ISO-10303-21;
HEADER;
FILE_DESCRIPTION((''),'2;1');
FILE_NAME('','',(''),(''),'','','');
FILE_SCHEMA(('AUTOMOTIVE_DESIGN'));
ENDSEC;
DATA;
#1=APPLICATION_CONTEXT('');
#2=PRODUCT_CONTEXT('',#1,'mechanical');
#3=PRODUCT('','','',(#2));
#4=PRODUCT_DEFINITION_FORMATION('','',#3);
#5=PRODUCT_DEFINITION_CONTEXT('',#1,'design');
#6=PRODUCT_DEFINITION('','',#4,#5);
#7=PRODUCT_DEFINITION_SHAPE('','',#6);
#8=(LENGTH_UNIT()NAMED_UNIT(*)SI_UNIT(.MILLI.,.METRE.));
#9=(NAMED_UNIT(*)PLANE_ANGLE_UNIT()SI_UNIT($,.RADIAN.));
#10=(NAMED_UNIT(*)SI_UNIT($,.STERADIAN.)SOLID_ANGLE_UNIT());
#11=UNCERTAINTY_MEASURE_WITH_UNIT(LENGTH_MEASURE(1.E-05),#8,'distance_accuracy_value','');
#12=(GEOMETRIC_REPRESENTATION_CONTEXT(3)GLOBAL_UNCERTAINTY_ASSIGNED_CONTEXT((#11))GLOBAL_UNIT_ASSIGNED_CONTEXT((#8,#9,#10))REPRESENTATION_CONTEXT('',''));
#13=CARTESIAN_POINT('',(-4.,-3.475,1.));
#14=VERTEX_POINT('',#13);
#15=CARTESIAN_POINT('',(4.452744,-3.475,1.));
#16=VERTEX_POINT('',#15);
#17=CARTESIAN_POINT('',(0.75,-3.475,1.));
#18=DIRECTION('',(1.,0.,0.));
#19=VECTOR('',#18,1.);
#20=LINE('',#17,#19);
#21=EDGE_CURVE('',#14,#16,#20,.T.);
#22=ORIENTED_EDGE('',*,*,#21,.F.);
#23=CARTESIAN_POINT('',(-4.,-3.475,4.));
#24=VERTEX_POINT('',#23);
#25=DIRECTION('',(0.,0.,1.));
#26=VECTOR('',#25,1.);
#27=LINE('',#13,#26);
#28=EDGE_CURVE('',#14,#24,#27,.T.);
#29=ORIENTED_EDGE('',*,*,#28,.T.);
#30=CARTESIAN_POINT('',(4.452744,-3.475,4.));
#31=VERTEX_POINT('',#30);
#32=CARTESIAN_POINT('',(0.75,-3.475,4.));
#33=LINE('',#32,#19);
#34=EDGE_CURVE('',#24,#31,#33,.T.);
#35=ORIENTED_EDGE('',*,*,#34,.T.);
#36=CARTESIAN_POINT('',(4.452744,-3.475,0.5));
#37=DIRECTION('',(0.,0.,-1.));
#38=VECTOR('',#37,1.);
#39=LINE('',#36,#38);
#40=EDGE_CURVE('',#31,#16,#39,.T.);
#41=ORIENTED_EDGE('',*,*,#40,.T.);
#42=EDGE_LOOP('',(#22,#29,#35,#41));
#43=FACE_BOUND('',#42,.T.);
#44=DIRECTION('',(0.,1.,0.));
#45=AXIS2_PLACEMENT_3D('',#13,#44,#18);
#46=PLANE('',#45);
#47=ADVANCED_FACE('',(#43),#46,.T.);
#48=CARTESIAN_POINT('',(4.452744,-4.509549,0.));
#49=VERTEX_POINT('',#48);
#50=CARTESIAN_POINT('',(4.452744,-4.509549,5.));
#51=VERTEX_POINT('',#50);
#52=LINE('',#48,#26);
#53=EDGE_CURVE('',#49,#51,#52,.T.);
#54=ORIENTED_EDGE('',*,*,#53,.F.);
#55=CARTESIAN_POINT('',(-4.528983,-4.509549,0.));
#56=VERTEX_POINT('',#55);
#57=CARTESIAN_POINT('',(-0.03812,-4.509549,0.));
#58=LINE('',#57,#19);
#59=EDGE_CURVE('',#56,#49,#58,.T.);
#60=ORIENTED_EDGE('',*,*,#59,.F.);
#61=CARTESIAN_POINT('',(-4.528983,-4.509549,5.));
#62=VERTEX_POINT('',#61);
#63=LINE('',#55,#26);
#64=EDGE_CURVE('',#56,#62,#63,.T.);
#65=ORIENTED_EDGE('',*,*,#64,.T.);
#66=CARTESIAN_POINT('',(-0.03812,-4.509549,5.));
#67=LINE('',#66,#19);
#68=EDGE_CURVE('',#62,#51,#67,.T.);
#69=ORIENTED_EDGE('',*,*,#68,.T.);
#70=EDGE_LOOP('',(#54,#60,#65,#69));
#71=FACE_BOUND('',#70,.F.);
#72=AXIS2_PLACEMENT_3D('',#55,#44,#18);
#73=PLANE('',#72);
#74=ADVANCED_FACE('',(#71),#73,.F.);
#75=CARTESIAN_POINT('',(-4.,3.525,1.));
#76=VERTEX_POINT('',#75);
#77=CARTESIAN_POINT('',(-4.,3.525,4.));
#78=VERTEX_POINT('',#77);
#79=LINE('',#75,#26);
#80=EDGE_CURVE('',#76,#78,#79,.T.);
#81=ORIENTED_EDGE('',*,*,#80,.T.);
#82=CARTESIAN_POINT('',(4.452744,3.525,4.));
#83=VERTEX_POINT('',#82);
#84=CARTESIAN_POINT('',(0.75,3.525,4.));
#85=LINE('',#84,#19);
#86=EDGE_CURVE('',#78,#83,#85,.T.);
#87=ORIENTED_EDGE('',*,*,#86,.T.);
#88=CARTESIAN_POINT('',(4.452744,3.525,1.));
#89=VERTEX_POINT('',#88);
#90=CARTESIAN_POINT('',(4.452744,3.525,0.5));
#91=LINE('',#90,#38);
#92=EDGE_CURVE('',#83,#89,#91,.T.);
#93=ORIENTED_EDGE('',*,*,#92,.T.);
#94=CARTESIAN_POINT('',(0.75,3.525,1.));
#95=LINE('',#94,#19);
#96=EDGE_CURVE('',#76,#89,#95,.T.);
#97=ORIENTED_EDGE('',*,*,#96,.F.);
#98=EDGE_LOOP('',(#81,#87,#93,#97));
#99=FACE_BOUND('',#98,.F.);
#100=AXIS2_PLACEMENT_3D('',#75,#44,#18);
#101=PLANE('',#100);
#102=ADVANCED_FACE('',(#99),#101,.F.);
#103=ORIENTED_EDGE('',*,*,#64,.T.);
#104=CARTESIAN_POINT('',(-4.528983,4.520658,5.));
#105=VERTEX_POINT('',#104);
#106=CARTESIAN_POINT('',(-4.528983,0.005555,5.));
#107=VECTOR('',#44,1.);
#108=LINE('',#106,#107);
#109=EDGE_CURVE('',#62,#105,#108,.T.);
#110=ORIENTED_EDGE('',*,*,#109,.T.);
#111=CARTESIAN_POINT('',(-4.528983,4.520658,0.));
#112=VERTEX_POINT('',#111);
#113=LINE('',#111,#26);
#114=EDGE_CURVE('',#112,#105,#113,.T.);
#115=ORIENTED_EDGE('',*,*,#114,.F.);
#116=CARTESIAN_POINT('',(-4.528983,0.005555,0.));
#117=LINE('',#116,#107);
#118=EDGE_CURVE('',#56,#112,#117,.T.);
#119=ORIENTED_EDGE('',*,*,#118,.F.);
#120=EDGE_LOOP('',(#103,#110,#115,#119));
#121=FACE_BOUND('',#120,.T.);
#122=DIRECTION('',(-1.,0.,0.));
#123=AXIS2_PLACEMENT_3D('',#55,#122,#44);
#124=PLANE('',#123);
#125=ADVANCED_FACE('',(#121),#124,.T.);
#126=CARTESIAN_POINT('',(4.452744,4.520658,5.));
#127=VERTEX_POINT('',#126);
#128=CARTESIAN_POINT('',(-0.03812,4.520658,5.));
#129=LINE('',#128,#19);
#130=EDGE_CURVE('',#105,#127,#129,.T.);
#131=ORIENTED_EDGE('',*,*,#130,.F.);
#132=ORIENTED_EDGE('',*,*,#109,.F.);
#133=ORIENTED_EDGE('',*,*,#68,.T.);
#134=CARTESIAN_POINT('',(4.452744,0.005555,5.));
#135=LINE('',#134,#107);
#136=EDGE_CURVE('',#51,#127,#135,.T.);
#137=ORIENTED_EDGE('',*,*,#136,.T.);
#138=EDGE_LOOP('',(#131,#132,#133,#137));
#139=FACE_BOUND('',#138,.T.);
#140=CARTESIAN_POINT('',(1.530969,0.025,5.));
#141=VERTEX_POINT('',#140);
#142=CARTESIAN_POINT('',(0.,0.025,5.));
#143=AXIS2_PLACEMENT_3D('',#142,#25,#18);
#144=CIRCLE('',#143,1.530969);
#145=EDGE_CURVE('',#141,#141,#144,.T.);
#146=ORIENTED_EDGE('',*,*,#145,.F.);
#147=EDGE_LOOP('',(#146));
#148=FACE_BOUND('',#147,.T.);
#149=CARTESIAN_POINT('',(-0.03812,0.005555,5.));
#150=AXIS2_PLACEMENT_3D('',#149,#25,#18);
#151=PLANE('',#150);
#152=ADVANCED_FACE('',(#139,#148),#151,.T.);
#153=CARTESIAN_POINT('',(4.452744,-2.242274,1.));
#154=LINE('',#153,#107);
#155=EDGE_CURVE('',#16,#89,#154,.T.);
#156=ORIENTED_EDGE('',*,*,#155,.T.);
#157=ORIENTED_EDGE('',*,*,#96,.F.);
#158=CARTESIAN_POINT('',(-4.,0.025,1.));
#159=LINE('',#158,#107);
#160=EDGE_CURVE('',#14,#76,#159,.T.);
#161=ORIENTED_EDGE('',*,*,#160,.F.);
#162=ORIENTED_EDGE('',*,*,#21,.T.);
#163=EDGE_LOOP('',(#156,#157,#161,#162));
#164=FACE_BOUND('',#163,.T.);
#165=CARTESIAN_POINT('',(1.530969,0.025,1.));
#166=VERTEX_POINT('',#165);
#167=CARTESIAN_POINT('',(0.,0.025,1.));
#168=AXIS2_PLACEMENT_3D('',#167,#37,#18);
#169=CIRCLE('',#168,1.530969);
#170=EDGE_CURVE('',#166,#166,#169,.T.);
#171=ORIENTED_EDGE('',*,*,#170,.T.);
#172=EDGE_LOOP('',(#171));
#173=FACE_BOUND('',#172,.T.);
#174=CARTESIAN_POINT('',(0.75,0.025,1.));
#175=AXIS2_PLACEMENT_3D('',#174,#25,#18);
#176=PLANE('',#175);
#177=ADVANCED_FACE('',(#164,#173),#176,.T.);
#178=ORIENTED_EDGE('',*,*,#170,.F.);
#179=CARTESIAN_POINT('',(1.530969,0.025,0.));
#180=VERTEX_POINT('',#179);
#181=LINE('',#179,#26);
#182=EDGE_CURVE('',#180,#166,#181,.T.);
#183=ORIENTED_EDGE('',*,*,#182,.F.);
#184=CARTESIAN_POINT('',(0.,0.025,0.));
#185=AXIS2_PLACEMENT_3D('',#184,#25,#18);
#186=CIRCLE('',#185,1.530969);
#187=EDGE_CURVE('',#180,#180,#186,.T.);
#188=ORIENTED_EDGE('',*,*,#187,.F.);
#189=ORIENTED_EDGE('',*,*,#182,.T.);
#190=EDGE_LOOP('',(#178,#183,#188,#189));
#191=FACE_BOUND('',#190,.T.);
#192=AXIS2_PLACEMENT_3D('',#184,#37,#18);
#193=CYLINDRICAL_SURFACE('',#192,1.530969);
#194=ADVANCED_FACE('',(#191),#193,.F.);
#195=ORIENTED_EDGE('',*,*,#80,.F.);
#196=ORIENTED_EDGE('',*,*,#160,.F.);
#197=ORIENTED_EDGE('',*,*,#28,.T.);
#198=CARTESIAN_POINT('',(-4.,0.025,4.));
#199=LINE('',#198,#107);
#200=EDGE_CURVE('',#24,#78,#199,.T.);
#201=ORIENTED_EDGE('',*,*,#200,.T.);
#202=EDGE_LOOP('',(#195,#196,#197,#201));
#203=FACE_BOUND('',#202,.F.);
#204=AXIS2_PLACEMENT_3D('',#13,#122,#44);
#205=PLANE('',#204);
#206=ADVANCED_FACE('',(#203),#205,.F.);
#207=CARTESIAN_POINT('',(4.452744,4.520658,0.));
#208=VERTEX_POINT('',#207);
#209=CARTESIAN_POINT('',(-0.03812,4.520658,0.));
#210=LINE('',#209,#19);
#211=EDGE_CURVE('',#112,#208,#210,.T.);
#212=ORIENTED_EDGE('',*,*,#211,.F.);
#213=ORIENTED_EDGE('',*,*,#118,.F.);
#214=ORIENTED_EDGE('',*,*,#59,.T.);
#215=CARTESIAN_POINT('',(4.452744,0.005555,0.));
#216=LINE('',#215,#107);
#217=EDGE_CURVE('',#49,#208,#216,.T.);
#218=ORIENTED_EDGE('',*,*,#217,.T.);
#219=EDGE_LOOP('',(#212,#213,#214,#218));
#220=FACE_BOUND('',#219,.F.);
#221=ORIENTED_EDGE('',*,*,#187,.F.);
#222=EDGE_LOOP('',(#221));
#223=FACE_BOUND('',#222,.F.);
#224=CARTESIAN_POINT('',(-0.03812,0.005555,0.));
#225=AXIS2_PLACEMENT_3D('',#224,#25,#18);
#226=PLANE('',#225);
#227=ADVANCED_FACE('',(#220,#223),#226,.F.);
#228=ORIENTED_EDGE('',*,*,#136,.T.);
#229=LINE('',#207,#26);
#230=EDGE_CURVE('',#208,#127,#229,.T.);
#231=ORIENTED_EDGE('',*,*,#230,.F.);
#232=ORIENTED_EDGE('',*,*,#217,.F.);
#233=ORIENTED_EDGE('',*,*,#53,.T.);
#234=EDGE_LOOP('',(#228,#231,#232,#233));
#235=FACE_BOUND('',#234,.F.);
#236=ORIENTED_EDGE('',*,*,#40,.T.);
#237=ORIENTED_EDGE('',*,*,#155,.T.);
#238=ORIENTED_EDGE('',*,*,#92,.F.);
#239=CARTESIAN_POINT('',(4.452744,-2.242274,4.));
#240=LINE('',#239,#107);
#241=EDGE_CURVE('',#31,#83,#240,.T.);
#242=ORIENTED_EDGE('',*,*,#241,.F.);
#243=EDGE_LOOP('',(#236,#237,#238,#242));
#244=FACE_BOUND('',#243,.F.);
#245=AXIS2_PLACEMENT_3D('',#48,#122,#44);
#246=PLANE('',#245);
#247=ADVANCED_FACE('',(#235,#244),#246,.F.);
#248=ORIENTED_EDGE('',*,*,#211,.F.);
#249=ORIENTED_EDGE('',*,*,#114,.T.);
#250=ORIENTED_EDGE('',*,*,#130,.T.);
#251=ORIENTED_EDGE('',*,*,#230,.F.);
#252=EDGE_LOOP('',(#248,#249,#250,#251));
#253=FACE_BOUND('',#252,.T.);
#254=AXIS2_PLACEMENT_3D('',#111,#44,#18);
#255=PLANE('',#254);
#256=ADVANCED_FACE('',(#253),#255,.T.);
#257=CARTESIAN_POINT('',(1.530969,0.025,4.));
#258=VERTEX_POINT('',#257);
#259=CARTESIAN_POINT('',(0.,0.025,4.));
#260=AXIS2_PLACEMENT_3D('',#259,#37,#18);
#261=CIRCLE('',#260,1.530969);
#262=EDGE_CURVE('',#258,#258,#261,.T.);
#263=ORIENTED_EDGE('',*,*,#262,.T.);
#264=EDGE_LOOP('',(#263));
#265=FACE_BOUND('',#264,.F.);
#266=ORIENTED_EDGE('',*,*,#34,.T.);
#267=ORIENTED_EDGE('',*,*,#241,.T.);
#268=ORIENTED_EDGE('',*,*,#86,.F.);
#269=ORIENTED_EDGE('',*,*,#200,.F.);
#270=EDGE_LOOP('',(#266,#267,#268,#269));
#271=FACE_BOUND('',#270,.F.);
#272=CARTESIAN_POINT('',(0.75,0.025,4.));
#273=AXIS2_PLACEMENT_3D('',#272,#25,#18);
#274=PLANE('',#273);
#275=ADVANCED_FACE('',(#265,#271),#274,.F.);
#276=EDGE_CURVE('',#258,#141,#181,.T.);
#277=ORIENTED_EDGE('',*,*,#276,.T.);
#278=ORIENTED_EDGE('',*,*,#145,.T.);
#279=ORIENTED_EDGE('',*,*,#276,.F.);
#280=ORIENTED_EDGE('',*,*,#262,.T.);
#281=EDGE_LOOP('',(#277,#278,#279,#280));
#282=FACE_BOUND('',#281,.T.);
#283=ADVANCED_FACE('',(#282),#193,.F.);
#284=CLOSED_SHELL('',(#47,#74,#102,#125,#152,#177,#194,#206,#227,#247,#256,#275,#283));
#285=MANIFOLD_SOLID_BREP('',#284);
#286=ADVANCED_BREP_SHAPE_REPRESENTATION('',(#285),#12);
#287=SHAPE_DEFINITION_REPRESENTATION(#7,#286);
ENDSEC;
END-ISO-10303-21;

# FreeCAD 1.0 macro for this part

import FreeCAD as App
import Part
import Sketcher

V = App.Vector
Q = App.Units.Quantity


def add_polygon(sketch, points):
    """Adds a closed chain of lines whose ends are joined by coincident constraints."""
    first, n = sketch.GeometryCount, len(points)
    for a, b in zip(points, points[1:] + points[:1]):
        sketch.addGeometry(Part.LineSegment(App.Vector(*a, 0), App.Vector(*b, 0)), False)
    for i in range(n):
        sketch.addConstraint(Sketcher.Constraint("Coincident", first + i, 2, first + (i + 1) % n, 1))

doc = App.newDocument("Part")
body = doc.addObject("PartDesign::Body", "Body")

sketch1 = body.newObject("Sketcher::SketchObject", "Sketch")
sketch1.AttachmentSupport = (doc.getObject("XY_Plane"), [""])
sketch1.MapMode = "FlatFace"
add_polygon(sketch1, [(0, 7), (0, 0), (10, 0), (10, 7)])
sketch1.addConstraint([
    Sketcher.Constraint("Vertical", 0),
    Sketcher.Constraint("Horizontal", 1),
    Sketcher.Constraint("Vertical", 2),
    Sketcher.Constraint("Horizontal", 3),
    Sketcher.Constraint("Coincident", 0, 2, -1, 1),
    Sketcher.Constraint("DistanceY", 0, 2, 0, 1, Q("7 mm")),
    Sketcher.Constraint("DistanceX", 1, 1, 1, 2, Q("9.5 mm")),
])
pad1 = body.newObject("PartDesign::Pad", "Pad")
pad1.Profile = sketch1
pad1.Length = 3
body2 = doc.addObject("PartDesign::Body", "Body001")
doc.recompute()

body.Placement = App.Placement(V(-4, -3.5, 1), App.Rotation(V(0, 0, 1), 0))
boolean = body2.newObject("PartDesign::Boolean", "Boolean")
boolean.Type = "Fuse"
boolean.addObjects([body])
body3 = doc.addObject("PartDesign::Body", "Body002")

sketch2 = body3.newObject("Sketcher::SketchObject", "Sketch001")
sketch2.AttachmentSupport = (doc.getObject("XY_Plane002"), [""])
sketch2.MapMode = "FlatFace"
add_polygon(sketch2, [(-4.5, 4.5), (-4.5, -4.5), (4.5, -4.5), (4.5, 4.5)])
sketch2.addGeometry(Part.Circle(V(0, 0, 0), V(0, 0, 1), 1.5), False)
sketch2.addConstraint([
    Sketcher.Constraint("Vertical", 0),
    Sketcher.Constraint("Horizontal", 1),
    Sketcher.Constraint("Vertical", 2),
    Sketcher.Constraint("Horizontal", 3),
    Sketcher.Constraint("Coincident", 4, 3, -1, 1),
    Sketcher.Constraint("Diameter", 4, Q("3.061938 mm")),
    Sketcher.Constraint("DistanceX", 1, 1, 1, 2, Q("8.981727 mm")),
    Sketcher.Constraint("DistanceY", 0, 2, 0, 1, Q("9.030207 mm")),
    Sketcher.Constraint("DistanceY", 0, 2, -1, 1, Q("4.534548 mm")),
    Sketcher.Constraint("DistanceX", 0, 2, -1, 1, Q("4.528983 mm")),
])
pad2 = body3.newObject("PartDesign::Pad", "Pad001")
pad2.Profile = sketch2
pad2.Length = 5
doc.recompute()

boolean2 = body3.newObject("PartDesign::Boolean", "Boolean001")
boolean2.Type = "Cut"
boolean2.addObjects([body2])
body4 = doc.addObject("PartDesign::Body", "Body003")
doc.recompute()

body3.Placement = App.Placement(V(0, 0.025, 0), App.Rotation(V(0, 0, 1), 0))
boolean3 = body4.newObject("PartDesign::Boolean", "Boolean002")
boolean3.Type = "Fuse"
boolean3.addObjects([body3])

doc.recompute()
